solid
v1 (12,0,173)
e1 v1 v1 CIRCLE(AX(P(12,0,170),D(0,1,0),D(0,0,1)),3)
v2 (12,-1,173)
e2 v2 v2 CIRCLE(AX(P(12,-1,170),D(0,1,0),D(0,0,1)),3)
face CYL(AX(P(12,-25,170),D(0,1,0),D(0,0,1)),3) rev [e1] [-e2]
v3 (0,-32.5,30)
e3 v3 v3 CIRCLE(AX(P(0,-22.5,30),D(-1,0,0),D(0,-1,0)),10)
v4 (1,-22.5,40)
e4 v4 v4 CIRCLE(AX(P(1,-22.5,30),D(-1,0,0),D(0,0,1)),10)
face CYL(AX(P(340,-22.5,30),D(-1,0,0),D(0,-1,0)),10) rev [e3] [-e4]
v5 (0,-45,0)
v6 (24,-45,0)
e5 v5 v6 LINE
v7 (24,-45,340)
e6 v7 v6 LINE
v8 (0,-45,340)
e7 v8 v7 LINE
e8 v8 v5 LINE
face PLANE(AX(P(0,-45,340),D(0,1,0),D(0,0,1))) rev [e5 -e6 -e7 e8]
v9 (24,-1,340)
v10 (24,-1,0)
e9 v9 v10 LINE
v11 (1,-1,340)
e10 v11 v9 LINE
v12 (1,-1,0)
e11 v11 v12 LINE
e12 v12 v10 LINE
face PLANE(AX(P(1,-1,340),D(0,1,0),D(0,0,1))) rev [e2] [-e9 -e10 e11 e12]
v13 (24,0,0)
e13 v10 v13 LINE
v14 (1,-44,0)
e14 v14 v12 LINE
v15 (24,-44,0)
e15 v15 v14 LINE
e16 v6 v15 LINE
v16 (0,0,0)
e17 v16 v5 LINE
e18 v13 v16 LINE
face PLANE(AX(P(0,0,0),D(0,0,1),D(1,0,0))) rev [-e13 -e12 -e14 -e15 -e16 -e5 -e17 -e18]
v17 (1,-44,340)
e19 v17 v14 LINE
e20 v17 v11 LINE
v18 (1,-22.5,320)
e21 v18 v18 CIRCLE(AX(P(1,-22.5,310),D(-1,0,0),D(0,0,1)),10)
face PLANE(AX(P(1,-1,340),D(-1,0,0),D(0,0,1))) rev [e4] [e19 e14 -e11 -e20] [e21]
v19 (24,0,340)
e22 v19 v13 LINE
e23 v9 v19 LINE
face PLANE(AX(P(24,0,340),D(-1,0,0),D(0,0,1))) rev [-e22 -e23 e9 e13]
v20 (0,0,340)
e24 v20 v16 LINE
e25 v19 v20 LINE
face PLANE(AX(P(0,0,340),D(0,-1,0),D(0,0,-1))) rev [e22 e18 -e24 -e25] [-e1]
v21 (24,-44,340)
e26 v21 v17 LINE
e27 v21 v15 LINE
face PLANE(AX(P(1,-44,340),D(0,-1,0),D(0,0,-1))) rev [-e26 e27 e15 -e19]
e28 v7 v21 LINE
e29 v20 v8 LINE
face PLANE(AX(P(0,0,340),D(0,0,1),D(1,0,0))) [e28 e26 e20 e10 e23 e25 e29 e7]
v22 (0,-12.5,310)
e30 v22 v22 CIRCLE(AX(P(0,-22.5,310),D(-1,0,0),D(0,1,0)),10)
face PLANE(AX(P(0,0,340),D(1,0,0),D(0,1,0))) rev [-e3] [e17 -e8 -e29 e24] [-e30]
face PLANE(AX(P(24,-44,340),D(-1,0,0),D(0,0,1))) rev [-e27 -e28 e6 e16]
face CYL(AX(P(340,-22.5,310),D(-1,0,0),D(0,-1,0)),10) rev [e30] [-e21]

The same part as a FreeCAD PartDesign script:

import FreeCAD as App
import Part
import Sketcher
from FreeCAD import Vector

doc = App.newDocument("Part")
body = doc.addObject("PartDesign::Body", "Body")

# Sketch on XY plane
sketch1 = body.newObject("Sketcher::SketchObject", "Sketch")
sketch1.AttachmentSupport = (doc.getObject("XY_Plane"), [""])
sketch1.MapMode = "FlatFace"
sketch1.addGeometry(Part.LineSegment(Vector(24, 0, 0), Vector(0, 0, 0)), False)
sketch1.addGeometry(Part.LineSegment(Vector(0, 0, 0), Vector(0, -45, 0)), False)
sketch1.addGeometry(Part.LineSegment(Vector(0, -45, 0), Vector(24, -45, 0)), False)
sketch1.addGeometry(Part.LineSegment(Vector(24, -45, 0), Vector(24, -44, 0)), False)
sketch1.addGeometry(Part.LineSegment(Vector(24, -44, 0), Vector(1, -44, 0)), False)
sketch1.addGeometry(Part.LineSegment(Vector(1, -44, 0), Vector(1, -1, 0)), False)
sketch1.addGeometry(Part.LineSegment(Vector(1, -1, 0), Vector(24, -1, 0)), False)
sketch1.addGeometry(Part.LineSegment(Vector(24, -1, 0), Vector(24, 0, 0)), False)
sketch1.addConstraint(Sketcher.Constraint("Coincident", 0, 2, 1, 1))
sketch1.addConstraint(Sketcher.Constraint("Coincident", 1, 2, 2, 1))
sketch1.addConstraint(Sketcher.Constraint("Coincident", 2, 2, 3, 1))
sketch1.addConstraint(Sketcher.Constraint("Coincident", 3, 2, 4, 1))
sketch1.addConstraint(Sketcher.Constraint("Coincident", 4, 2, 5, 1))
sketch1.addConstraint(Sketcher.Constraint("Coincident", 5, 2, 6, 1))
sketch1.addConstraint(Sketcher.Constraint("Coincident", 6, 2, 7, 1))
sketch1.addConstraint(Sketcher.Constraint("Coincident", 7, 2, 0, 1))
sketch1.addConstraint(Sketcher.Constraint("Horizontal", 0))
sketch1.addConstraint(Sketcher.Constraint("Vertical", 1))
sketch1.addConstraint(Sketcher.Constraint("Horizontal", 2))
sketch1.addConstraint(Sketcher.Constraint("Vertical", 3))
sketch1.addConstraint(Sketcher.Constraint("Horizontal", 4))
sketch1.addConstraint(Sketcher.Constraint("Vertical", 5))
sketch1.addConstraint(Sketcher.Constraint("Horizontal", 6))
sketch1.addConstraint(Sketcher.Constraint("Vertical", 7))
sketch1.addConstraint(Sketcher.Constraint("Coincident", 0, 2, -1, 1))
sketch1.addConstraint(Sketcher.Constraint("Vertical", 3, 2, 6, 2))
sketch1.addConstraint(Sketcher.Constraint("Equal", 3, 7))
sketch1.addConstraint(Sketcher.Constraint("DistanceX", 0, 2, 0, 1, 24.0))
sketch1.addConstraint(Sketcher.Constraint("DistanceX", 4, 2, 4, 1, 23.0))
sketch1.addConstraint(Sketcher.Constraint("DistanceY", 1, 2, 1, 1, 45.0))
sketch1.addConstraint(Sketcher.Constraint("DistanceY", 3, 1, 3, 2, 1.0))
pad1 = body.newObject("PartDesign::Pad", "Pad")
pad1.Profile = sketch1
pad1.Length = 340

# Sketch on YZ plane
sketch2 = body.newObject("Sketcher::SketchObject", "Sketch001")
sketch2.AttachmentSupport = (doc.getObject("YZ_Plane"), [""])
sketch2.MapMode = "FlatFace"
sketch2.addGeometry(Part.Circle(Vector(-22, 30, 0), Vector(0, 0, 1), 10), False)
sketch2.addGeometry(Part.Circle(Vector(-22, 310, 0), Vector(0, 0, 1), 10), False)
sketch2.addConstraint(Sketcher.Constraint("Equal", 0, 1))
sketch2.addConstraint(Sketcher.Constraint("Vertical", 0, 3, 1, 3))
sketch2.addConstraint(Sketcher.Constraint("Diameter", 0, 20.0))
sketch2.addConstraint(Sketcher.Constraint("DistanceY", -1, 1, 0, 3, 30.0))
sketch2.addConstraint(Sketcher.Constraint("DistanceY", -1, 1, 1, 3, 310.0))
sketch2.addConstraint(Sketcher.Constraint("DistanceX", 0, 3, -1, 1, 22.5))
pocket1 = body.newObject("PartDesign::Pocket", "Pocket")
pocket1.Profile = sketch2
pocket1.Length = 340
pocket1.Reversed = True

# Sketch on XZ plane
sketch3 = body.newObject("Sketcher::SketchObject", "Sketch002")
sketch3.AttachmentSupport = (doc.getObject("XZ_Plane"), [""])
sketch3.MapMode = "FlatFace"
sketch3.addGeometry(Part.Circle(Vector(12, 170, 0), Vector(0, 0, 1), 3), False)
sketch3.addConstraint(Sketcher.Constraint("Diameter", 0, 6.0))
sketch3.addConstraint(Sketcher.Constraint("DistanceX", -1, 1, 0, 3, 12.0))
sketch3.addConstraint(Sketcher.Constraint("DistanceY", -1, 1, 0, 3, 170.0))
pocket2 = body.newObject("PartDesign::Pocket", "Pocket001")
pocket2.Profile = sketch3
pocket2.Length = 25
pocket2.Reversed = True

doc.recompute()
